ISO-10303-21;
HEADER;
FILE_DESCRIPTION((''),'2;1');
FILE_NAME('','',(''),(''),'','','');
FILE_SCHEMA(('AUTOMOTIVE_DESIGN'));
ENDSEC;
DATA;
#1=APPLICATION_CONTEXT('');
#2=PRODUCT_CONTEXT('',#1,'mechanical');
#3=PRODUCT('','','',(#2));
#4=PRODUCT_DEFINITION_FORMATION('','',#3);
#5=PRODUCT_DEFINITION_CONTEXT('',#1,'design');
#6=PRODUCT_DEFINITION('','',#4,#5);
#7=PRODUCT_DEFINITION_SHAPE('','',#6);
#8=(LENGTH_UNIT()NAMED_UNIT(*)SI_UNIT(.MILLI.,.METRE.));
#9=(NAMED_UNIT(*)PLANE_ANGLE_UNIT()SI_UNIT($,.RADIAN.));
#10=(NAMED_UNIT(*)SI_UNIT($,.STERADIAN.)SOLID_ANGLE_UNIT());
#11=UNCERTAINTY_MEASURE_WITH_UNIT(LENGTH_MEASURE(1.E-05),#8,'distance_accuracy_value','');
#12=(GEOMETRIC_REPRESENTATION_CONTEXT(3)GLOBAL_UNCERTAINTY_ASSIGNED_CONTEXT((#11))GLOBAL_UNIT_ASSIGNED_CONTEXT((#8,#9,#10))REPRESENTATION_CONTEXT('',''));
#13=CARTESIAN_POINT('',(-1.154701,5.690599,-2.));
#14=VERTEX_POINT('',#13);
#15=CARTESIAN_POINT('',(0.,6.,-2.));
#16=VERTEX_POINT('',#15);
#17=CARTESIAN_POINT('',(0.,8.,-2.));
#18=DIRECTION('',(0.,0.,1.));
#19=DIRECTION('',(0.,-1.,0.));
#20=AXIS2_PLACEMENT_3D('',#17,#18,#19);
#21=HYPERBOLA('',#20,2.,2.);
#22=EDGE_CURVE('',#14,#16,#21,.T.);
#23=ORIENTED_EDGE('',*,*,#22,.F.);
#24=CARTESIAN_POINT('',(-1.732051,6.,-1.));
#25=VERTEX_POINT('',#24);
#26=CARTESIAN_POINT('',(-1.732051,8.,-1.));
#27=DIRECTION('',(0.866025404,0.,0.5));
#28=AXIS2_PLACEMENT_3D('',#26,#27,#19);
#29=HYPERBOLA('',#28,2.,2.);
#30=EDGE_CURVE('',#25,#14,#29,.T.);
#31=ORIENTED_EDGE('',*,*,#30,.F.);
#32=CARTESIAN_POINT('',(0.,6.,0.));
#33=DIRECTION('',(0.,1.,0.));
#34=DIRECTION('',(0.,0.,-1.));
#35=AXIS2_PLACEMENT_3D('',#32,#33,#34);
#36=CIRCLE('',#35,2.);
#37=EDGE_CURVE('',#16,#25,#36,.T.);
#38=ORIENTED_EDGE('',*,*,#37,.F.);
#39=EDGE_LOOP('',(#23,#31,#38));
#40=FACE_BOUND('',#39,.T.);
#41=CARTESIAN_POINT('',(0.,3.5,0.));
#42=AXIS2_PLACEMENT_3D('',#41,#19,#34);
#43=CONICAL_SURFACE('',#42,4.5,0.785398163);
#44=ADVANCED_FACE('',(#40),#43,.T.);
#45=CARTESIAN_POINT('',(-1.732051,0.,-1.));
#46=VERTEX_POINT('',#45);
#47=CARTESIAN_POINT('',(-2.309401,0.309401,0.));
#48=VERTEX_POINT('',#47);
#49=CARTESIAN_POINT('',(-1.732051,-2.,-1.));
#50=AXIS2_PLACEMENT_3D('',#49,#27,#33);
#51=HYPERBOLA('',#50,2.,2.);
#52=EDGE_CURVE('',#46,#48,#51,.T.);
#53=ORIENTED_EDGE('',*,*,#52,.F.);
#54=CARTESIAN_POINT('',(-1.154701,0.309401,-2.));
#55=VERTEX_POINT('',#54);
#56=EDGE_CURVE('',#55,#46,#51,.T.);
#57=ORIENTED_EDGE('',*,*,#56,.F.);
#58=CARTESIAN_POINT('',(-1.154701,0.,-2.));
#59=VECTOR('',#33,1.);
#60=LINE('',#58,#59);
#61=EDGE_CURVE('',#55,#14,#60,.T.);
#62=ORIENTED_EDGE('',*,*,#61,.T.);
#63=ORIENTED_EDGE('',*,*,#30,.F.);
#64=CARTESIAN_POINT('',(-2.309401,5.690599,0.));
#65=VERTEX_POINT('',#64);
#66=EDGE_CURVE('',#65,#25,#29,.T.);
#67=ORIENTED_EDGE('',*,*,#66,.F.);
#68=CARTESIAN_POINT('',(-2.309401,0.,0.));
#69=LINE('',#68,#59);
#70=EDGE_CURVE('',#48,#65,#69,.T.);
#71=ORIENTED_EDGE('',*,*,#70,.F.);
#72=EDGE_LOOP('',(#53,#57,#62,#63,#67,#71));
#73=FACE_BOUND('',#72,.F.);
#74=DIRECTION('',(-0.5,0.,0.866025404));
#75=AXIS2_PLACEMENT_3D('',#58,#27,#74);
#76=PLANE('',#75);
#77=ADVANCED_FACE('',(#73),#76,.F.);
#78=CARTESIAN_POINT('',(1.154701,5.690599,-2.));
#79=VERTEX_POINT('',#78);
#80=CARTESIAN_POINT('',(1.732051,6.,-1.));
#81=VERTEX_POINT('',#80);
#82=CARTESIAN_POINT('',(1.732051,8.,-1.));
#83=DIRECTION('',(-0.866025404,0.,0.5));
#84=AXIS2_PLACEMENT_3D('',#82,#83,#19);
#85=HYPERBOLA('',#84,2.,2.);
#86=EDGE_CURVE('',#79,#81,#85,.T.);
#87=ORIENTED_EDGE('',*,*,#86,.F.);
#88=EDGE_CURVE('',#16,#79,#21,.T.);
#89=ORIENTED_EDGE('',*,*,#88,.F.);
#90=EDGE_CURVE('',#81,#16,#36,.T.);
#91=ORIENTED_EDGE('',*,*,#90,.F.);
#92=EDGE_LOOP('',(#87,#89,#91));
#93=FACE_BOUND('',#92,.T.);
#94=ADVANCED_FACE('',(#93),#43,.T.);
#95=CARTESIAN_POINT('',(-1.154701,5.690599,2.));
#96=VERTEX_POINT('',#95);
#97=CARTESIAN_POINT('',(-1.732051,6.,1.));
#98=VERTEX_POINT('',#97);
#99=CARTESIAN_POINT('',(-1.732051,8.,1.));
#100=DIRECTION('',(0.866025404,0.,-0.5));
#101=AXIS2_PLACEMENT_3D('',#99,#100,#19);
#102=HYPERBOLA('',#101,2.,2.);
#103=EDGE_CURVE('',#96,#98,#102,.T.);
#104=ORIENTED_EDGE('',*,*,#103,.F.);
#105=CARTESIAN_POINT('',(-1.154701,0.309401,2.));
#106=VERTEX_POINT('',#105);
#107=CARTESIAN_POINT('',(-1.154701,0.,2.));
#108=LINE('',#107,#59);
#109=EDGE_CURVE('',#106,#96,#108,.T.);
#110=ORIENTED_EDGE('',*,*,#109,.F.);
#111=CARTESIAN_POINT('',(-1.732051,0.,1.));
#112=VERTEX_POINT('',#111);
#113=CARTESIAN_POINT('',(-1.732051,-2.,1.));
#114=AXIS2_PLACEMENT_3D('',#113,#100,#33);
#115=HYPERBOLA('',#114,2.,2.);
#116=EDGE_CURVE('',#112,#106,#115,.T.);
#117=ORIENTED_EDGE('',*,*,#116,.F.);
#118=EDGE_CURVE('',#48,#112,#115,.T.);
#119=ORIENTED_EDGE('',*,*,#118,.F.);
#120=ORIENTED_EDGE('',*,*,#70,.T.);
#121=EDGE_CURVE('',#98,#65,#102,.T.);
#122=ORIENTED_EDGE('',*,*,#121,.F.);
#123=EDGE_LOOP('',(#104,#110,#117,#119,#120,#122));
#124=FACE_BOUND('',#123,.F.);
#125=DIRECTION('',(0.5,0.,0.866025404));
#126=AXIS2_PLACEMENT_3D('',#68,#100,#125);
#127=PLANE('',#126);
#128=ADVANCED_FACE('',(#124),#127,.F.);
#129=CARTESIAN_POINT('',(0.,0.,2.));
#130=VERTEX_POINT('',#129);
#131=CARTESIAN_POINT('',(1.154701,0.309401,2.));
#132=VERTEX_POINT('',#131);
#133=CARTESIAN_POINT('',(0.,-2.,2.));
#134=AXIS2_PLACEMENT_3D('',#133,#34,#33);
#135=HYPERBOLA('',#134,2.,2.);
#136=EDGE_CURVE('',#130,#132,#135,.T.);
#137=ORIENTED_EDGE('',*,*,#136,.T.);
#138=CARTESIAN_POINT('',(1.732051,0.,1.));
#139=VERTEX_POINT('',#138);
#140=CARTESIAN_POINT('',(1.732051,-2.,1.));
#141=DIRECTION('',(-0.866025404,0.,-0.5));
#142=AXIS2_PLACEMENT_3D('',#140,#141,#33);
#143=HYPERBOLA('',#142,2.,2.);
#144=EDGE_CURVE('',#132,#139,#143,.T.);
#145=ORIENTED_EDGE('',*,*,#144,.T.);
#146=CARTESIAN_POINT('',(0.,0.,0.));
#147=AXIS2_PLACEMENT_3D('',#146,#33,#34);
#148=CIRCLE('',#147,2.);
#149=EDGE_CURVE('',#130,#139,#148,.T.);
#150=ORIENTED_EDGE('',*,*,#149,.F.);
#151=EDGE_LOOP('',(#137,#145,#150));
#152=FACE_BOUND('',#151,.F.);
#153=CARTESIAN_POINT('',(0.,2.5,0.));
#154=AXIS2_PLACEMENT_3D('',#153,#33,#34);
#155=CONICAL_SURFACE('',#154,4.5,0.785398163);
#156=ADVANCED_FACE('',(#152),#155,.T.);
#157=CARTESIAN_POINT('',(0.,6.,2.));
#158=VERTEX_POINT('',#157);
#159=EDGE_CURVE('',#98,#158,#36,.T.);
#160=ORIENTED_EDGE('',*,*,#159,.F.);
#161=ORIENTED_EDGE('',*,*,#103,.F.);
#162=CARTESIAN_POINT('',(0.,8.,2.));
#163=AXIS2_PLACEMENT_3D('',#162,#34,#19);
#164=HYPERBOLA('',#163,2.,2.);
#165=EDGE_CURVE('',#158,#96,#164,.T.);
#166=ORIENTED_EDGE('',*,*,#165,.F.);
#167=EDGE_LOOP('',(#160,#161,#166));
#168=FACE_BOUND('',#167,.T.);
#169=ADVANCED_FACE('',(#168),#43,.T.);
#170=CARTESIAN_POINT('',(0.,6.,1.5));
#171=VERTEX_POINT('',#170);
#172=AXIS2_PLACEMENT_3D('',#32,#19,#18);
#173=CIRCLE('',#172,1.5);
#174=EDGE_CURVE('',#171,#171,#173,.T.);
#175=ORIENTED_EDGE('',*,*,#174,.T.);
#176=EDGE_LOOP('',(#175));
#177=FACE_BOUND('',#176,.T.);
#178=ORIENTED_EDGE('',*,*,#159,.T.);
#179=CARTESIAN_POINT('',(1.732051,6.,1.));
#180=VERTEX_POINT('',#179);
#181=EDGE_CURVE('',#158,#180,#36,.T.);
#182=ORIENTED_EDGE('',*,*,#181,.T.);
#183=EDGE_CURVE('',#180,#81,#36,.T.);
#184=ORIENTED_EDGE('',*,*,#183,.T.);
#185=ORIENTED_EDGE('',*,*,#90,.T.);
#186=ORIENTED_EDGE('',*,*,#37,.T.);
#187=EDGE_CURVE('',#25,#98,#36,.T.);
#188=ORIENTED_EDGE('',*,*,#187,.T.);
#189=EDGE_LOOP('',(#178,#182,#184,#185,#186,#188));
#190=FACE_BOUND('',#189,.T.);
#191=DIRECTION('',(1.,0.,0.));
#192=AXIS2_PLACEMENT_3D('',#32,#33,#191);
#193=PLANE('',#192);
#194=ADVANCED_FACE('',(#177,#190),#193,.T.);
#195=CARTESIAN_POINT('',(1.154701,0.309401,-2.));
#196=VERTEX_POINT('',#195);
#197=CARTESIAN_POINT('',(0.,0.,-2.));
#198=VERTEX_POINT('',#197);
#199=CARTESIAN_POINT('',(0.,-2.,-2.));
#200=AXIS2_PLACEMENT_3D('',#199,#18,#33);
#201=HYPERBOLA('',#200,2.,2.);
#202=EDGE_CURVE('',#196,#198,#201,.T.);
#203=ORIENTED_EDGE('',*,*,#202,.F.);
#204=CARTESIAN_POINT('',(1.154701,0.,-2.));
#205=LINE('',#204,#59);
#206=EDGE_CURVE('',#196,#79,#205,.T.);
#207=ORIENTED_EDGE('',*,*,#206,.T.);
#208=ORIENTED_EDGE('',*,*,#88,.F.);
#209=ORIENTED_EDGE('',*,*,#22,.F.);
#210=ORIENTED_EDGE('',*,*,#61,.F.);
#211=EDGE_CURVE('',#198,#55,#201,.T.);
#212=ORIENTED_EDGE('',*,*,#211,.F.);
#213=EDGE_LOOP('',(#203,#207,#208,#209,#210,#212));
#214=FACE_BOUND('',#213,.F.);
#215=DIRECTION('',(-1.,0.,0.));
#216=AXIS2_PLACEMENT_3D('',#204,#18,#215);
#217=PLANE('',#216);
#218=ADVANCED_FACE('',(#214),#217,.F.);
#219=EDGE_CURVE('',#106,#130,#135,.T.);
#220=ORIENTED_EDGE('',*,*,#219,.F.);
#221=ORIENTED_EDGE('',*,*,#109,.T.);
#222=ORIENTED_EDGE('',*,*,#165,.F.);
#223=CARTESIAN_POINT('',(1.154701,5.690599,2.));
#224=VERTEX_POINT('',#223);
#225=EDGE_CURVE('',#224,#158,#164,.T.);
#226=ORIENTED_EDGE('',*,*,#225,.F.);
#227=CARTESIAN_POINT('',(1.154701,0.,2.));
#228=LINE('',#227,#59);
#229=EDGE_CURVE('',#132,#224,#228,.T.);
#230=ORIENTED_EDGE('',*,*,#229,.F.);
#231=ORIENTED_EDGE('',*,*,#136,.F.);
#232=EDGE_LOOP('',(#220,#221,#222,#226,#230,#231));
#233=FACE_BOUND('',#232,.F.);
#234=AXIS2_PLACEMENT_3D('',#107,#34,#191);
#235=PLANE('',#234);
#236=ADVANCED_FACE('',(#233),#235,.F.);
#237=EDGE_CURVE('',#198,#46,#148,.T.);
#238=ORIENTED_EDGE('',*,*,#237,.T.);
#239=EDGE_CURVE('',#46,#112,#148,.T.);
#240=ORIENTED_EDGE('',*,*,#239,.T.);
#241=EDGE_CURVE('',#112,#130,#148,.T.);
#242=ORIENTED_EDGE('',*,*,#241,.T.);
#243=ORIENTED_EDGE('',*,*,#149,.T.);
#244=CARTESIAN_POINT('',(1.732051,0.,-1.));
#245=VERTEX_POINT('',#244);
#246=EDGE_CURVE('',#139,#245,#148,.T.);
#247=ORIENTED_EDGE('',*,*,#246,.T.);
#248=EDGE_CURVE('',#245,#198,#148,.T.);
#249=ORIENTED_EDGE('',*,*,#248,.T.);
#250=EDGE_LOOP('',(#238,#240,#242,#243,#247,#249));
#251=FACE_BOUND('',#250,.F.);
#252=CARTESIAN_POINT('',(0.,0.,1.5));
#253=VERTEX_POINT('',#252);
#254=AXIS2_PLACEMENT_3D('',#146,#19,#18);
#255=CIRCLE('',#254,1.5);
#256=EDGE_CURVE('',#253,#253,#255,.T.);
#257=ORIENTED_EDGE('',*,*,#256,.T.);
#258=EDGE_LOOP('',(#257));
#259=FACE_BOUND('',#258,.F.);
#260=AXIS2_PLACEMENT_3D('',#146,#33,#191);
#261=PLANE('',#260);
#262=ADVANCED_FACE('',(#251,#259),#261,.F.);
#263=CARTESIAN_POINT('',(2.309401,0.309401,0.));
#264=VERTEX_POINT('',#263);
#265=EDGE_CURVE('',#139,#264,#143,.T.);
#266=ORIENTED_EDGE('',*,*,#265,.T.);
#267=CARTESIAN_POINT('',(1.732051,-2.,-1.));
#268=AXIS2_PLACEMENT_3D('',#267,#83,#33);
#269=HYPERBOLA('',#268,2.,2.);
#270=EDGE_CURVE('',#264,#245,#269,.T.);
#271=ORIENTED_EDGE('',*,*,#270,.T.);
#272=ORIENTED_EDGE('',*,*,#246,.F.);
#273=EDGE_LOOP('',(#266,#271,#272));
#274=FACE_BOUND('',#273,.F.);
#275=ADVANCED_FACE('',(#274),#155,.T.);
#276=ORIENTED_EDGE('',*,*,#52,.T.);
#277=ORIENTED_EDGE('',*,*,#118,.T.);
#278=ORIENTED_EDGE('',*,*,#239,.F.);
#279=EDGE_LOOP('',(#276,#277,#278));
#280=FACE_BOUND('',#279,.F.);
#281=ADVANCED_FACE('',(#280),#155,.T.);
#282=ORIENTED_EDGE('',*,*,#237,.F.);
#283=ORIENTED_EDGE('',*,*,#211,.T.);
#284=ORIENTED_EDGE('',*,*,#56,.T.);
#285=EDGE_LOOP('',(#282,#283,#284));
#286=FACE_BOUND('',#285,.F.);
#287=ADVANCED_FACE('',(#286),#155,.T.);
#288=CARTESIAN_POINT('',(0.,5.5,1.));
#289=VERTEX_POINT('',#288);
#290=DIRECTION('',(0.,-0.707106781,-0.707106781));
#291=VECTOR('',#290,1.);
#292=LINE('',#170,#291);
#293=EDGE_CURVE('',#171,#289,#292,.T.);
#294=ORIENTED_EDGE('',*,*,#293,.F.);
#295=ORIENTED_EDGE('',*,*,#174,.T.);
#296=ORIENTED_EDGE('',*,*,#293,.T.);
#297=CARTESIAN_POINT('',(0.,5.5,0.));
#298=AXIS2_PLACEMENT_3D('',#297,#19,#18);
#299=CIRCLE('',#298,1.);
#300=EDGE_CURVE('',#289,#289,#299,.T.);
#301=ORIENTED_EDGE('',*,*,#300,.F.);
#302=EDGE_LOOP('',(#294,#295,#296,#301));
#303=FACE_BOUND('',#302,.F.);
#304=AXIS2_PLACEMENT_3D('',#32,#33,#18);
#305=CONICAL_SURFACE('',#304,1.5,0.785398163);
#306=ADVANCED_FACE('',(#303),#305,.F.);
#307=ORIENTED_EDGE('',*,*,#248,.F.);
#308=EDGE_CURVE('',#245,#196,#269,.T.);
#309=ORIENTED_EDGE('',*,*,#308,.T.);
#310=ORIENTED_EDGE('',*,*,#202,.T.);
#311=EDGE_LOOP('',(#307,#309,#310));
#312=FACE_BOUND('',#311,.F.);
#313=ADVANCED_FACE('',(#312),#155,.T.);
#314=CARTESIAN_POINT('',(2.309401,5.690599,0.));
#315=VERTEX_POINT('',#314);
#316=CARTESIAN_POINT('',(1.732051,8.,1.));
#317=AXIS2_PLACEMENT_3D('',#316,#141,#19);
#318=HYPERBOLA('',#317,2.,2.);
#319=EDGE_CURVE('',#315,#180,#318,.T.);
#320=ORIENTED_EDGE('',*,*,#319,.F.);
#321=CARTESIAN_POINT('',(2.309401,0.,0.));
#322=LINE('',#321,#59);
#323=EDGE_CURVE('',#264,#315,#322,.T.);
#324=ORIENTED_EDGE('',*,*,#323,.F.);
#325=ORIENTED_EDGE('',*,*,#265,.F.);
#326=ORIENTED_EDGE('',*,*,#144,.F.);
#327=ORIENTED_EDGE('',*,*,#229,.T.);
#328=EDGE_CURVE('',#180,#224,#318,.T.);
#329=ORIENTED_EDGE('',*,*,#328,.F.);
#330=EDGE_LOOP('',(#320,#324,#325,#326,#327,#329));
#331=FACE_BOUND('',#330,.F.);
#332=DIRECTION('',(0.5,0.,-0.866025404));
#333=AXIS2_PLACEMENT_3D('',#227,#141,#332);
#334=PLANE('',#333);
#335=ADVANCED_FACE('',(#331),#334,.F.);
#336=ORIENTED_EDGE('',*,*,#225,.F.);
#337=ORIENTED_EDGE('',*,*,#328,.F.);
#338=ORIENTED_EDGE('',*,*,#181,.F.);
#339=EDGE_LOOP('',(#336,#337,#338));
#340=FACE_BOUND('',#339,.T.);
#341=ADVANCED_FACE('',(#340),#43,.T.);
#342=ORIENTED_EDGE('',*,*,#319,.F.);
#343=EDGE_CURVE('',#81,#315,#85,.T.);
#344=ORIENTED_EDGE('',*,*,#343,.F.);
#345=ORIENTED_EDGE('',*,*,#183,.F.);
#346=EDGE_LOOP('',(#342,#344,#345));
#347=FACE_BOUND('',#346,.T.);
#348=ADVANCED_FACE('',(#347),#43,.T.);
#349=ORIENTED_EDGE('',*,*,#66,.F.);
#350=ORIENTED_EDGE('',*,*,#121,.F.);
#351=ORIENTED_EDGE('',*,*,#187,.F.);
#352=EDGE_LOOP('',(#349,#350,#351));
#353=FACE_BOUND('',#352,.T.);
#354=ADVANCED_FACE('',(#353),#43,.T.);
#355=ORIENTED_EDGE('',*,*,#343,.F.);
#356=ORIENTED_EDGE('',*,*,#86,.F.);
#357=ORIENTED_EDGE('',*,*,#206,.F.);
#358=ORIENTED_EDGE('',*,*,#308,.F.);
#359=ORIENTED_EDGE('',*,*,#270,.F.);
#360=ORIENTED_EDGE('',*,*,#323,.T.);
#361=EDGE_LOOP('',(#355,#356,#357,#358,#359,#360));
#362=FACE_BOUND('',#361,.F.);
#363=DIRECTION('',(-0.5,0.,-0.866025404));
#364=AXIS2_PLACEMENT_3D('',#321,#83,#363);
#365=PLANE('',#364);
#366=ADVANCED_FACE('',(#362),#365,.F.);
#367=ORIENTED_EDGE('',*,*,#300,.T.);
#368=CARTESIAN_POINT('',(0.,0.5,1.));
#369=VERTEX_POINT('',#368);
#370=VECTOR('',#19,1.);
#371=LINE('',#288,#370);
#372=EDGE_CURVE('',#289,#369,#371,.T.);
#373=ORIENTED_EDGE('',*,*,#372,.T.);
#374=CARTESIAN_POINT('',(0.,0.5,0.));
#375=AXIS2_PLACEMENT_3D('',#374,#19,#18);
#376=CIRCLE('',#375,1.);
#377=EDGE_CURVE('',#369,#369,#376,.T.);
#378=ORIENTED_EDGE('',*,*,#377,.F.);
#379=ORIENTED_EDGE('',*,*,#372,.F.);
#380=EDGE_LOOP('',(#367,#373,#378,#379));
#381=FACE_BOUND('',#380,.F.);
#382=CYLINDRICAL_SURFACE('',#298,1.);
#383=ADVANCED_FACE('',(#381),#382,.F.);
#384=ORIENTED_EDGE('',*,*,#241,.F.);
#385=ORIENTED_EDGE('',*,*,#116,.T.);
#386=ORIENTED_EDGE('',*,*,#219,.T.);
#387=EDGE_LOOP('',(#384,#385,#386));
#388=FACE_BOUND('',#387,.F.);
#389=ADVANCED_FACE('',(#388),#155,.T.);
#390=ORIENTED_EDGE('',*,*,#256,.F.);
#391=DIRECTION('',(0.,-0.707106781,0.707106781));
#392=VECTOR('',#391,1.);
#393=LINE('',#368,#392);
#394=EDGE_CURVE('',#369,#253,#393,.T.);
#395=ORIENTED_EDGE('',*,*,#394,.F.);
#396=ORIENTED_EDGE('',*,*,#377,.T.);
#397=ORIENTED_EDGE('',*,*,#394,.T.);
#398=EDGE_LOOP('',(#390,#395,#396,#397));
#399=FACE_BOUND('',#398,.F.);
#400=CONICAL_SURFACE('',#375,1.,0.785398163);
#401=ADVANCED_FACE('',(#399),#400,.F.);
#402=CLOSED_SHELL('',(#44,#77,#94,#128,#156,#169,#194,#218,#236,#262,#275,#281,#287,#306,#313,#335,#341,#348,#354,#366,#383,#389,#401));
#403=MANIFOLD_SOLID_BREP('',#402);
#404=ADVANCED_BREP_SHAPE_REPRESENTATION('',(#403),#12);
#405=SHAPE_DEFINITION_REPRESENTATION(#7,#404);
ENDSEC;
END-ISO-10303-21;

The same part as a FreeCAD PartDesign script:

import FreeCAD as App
import Part
import Sketcher
Q = App.Units.Quantity

doc = App.newDocument("Part")
body = doc.addObject("PartDesign::Body", "Body")

sketch1 = doc.addObject("Sketcher::SketchObject", "Sketch")
body.addObject(sketch1)
sketch1.AttachmentSupport = (doc.XZ_Plane, [""])
sketch1.MapMode = "FlatFace"
sketch1.addGeometry([
    Part.LineSegment(App.Vector(1.2, -2, 0), App.Vector(-1.2, -2, 0)),
    Part.LineSegment(App.Vector(-1.2, -2, 0), App.Vector(-2.3, 0, 0)),
    Part.LineSegment(App.Vector(-2.3, 0, 0), App.Vector(-1.2, 2, 0)),
    Part.LineSegment(App.Vector(-1.2, 2, 0), App.Vector(1.2, 2, 0)),
    Part.LineSegment(App.Vector(1.2, 2, 0), App.Vector(2.3, 0, 0)),
    Part.LineSegment(App.Vector(2.3, 0, 0), App.Vector(1.2, -2, 0)),
], False)
sketch1.addConstraint([
    Sketcher.Constraint("Coincident", 0, 2, 1, 1),
    Sketcher.Constraint("Coincident", 1, 2, 2, 1),
    Sketcher.Constraint("Coincident", 2, 2, 3, 1),
    Sketcher.Constraint("Coincident", 3, 2, 4, 1),
    Sketcher.Constraint("Coincident", 4, 2, 5, 1),
    Sketcher.Constraint("Coincident", 5, 2, 0, 1),
    Sketcher.Constraint("Horizontal", 0),
    Sketcher.Constraint("Horizontal", 3),
    Sketcher.Constraint("Symmetric", 0, 2, 3, 2, -1, 1),
    Sketcher.Constraint("Symmetric", 1, 2, 4, 2, -1, 1),
    Sketcher.Constraint("PointOnObject", 1, 2, -1),
    Sketcher.Constraint("Parallel", 2, 5),
    Sketcher.Constraint("Vertical", 0, 2, 2, 2),
    Sketcher.Constraint("Angle", 1, Q("120 deg")),
    Sketcher.Constraint("DistanceY", 0, 2, -1, 1, Q("2 mm")),
    Sketcher.Constraint("DistanceX", 0, 2, 0, 1, Q("2.309401 mm")),
])
pad1 = doc.addObject("PartDesign::Pad", "Pad")
body.addObject(pad1)
pad1.Profile = sketch1
pad1.Length = 6
pad1.Reversed = True

sketch2 = doc.addObject("Sketcher::SketchObject", "Sketch001")
body.addObject(sketch2)
sketch2.AttachmentSupport = (doc.YZ_Plane, [""])
sketch2.MapMode = "FlatFace"
sketch2.addGeometry([
    Part.LineSegment(App.Vector(5.5, -1, 0), App.Vector(6, -1.5, 0)),
    Part.LineSegment(App.Vector(6, -1.5, 0), App.Vector(6, 0, 0)),
    Part.LineSegment(App.Vector(6, 0, 0), App.Vector(0, 0, 0)),
    Part.LineSegment(App.Vector(0, 0, 0), App.Vector(0, -1.5, 0)),
    Part.LineSegment(App.Vector(0, -1.5, 0), App.Vector(0.5, -1, 0)),
    Part.LineSegment(App.Vector(0.5, -1, 0), App.Vector(5.5, -1, 0)),
], False)
sketch2.addConstraint([
    Sketcher.Constraint("Coincident", 0, 2, 1, 1),
    Sketcher.Constraint("Coincident", 1, 2, 2, 1),
    Sketcher.Constraint("Coincident", 2, 2, 3, 1),
    Sketcher.Constraint("Coincident", 3, 2, 4, 1),
    Sketcher.Constraint("Coincident", 4, 2, 5, 1),
    Sketcher.Constraint("Coincident", 5, 2, 0, 1),
    Sketcher.Constraint("Vertical", 1),
    Sketcher.Constraint("Horizontal", 2),
    Sketcher.Constraint("Vertical", 3),
    Sketcher.Constraint("Horizontal", 5),
    Sketcher.Constraint("Coincident", 2, 2, -1, 1),
    Sketcher.Constraint("Perpendicular", 0, 4),
    Sketcher.Constraint("Horizontal", 0, 2, 3, 2),
    Sketcher.Constraint("Equal", 0, 4),
    Sketcher.Constraint("DistanceX", 2, 2, 2, 1, Q("6 mm")),
    Sketcher.Constraint("DistanceX", 5, 1, 5, 2, Q("5 mm")),
    Sketcher.Constraint("DistanceY", 1, 1, 1, 2, Q("1.5 mm")),
])
groove = doc.addObject("PartDesign::Groove", "Groove")
body.addObject(groove)
groove.Profile = sketch2
groove.ReferenceAxis = (sketch2, ["H_Axis"])
groove.Angle = 360

sketch3 = doc.addObject("Sketcher::SketchObject", "Sketch002")
body.addObject(sketch3)
sketch3.AttachmentSupport = (doc.YZ_Plane, [""])
sketch3.MapMode = "FlatFace"
sketch3.addGeometry([
    Part.LineSegment(App.Vector(6, -4.5, 0), App.Vector(6, -2, 0)),
    Part.LineSegment(App.Vector(6, -2, 0), App.Vector(3.5, -4.5, 0)),
    Part.LineSegment(App.Vector(3.5, -4.5, 0), App.Vector(6, -4.5, 0)),
    Part.LineSegment(App.Vector(0, -2, 0), App.Vector(0, -4.5, 0)),
    Part.LineSegment(App.Vector(0, -4.5, 0), App.Vector(2.5, -4.5, 0)),
    Part.LineSegment(App.Vector(2.5, -4.5, 0), App.Vector(0, -2, 0)),
], False)
sketch3.addConstraint([
    Sketcher.Constraint("Coincident", 0, 2, 1, 1),
    Sketcher.Constraint("Coincident", 1, 2, 2, 1),
    Sketcher.Constraint("Coincident", 2, 2, 0, 1),
    Sketcher.Constraint("Coincident", 3, 2, 4, 1),
    Sketcher.Constraint("Coincident", 4, 2, 5, 1),
    Sketcher.Constraint("Coincident", 5, 2, 3, 1),
    Sketcher.Constraint("Vertical", 0),
    Sketcher.Constraint("Horizontal", 2),
    Sketcher.Constraint("Vertical", 3),
    Sketcher.Constraint("Horizontal", 4),
    Sketcher.Constraint("PointOnObject", 3, 2, -2),
    Sketcher.Constraint("Perpendicular", 1, 5),
    Sketcher.Constraint("Horizontal", 2, 2, 3, 2),
    Sketcher.Constraint("Horizontal", 0, 2, 5, 2),
    Sketcher.Constraint("Equal", 2, 4),
    Sketcher.Constraint("DistanceX", 2, 1, 2, 2, Q("2.5 mm")),
    Sketcher.Constraint("DistanceX", -1, 1, 0, 2, Q("6 mm")),
    Sketcher.Constraint("DistanceY", 0, 2, -1, 1, Q("2 mm")),
])
groove2 = doc.addObject("PartDesign::Groove", "Groove001")
body.addObject(groove2)
groove2.Profile = sketch3
groove2.ReferenceAxis = (sketch3, ["H_Axis"])
groove2.Angle = 360

doc.recompute()
